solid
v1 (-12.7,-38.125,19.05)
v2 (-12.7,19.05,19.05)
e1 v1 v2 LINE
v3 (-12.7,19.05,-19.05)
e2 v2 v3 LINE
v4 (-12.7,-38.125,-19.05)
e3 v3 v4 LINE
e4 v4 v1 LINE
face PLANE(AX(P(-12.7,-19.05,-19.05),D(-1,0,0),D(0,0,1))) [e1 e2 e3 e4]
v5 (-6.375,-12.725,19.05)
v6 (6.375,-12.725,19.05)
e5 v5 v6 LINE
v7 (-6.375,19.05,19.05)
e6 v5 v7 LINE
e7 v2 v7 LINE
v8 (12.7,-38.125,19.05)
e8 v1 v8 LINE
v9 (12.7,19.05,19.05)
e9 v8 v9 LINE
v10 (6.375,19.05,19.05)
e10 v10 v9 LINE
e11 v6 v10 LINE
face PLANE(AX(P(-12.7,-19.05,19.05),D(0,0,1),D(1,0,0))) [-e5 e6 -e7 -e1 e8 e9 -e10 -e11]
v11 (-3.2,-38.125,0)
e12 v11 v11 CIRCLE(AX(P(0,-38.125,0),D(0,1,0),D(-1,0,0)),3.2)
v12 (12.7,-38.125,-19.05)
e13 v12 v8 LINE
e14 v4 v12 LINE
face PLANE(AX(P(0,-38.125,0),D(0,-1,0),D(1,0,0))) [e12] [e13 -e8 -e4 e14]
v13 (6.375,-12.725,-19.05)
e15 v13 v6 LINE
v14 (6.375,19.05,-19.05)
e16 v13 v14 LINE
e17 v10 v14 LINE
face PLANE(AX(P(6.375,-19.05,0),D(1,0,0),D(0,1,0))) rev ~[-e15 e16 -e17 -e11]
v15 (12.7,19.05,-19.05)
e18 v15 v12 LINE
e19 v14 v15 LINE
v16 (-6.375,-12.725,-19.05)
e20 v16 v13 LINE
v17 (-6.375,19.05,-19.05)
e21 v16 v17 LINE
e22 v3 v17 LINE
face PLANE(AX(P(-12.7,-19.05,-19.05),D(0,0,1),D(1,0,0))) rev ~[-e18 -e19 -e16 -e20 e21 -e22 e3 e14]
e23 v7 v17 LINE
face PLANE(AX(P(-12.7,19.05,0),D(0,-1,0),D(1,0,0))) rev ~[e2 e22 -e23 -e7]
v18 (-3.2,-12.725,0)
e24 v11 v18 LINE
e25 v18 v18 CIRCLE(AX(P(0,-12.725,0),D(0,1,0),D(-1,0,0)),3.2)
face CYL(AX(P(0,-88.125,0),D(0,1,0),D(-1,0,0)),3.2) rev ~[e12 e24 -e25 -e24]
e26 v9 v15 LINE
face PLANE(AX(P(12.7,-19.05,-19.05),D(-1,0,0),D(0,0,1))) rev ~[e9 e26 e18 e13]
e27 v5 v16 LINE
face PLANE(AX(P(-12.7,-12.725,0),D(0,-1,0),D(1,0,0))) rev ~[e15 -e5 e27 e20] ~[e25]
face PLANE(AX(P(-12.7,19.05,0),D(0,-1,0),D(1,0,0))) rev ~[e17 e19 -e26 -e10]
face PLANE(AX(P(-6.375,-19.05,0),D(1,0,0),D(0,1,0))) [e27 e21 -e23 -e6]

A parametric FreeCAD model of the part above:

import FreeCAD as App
import Part
import Sketcher
Q = App.Units.Quantity


def faces_at(feature, points):
    """Names of the faces that lie closest to the given points."""
    faces = feature.Shape.Faces
    near = lambda p: min(range(len(faces)), key=lambda i: faces[i].distToShape(Part.Vertex(*p))[0])
    return sorted({f"Face{near(p) + 1}" for p in points})

doc = App.newDocument("Part")
body = doc.addObject("PartDesign::Body", "Body")

# Sketch on XY plane
sketch1 = body.newObject("Sketcher::SketchObject", "Sketch")
sketch1.AttachmentSupport = (doc.getObject("XY_Plane"), [""])
sketch1.MapMode = "FlatFace"
sketch1.addGeometry(Part.LineSegment(App.Vector(-12.7, 19.05, 0), App.Vector(-12.7, -19.05, 0)), False)
sketch1.addGeometry(Part.LineSegment(App.Vector(-12.7, -19.05, 0), App.Vector(12.7, -19.05, 0)), False)
sketch1.addGeometry(Part.LineSegment(App.Vector(12.7, -19.05, 0), App.Vector(12.7, 19.05, 0)), False)
sketch1.addGeometry(Part.LineSegment(App.Vector(12.7, 19.05, 0), App.Vector(-12.7, 19.05, 0)), False)
sketch1.addConstraint(Sketcher.Constraint("Coincident", 0, 2, 1, 1))
sketch1.addConstraint(Sketcher.Constraint("Coincident", 1, 2, 2, 1))
sketch1.addConstraint(Sketcher.Constraint("Coincident", 2, 2, 3, 1))
sketch1.addConstraint(Sketcher.Constraint("Coincident", 3, 2, 0, 1))
sketch1.addConstraint(Sketcher.Constraint("Vertical", 0))
sketch1.addConstraint(Sketcher.Constraint("Horizontal", 1))
sketch1.addConstraint(Sketcher.Constraint("Vertical", 2))
sketch1.addConstraint(Sketcher.Constraint("Horizontal", 3))
sketch1.addConstraint(Sketcher.Constraint("Symmetric", 0, 2, 2, 2, -1, 1))
sketch1.addConstraint(Sketcher.Constraint("DistanceX", 1, 1, 1, 2, Q("1 in")))
sketch1.addConstraint(Sketcher.Constraint("DistanceY", 0, 2, 0, 1, Q("1.5 in")))
pad1 = body.newObject("PartDesign::Pad", "Pad")
pad1.Profile = sketch1
pad1.Length = Q("1.5 in")
pad1.Midplane = True
doc.recompute()

thickness = body.newObject("PartDesign::Thickness", "Thickness")
thickness.Base = (pad1, faces_at(pad1, [(0, 19.05, 0), (0, 0, 19.05), (0, 0, -19.05)]))
thickness.Value = 6.325
thickness.Reversed = True
thickness.Join = "Arc"

# Sketch on XZ plane
sketch2 = body.newObject("Sketcher::SketchObject", "Sketch001")
sketch2.AttachmentSupport = (doc.getObject("XZ_Plane"), [""])
sketch2.MapMode = "FlatFace"
sketch2.AttachmentOffset = App.Placement(App.Vector(0, 0, 0.75 * 25.4), App.Rotation())
sketch2.addGeometry(Part.LineSegment(App.Vector(-12.7, 19.05, 0), App.Vector(-12.7, -19.05, 0)), False)
sketch2.addGeometry(Part.LineSegment(App.Vector(-12.7, -19.05, 0), App.Vector(12.7, -19.05, 0)), False)
sketch2.addGeometry(Part.LineSegment(App.Vector(12.7, -19.05, 0), App.Vector(12.7, 19.05, 0)), False)
sketch2.addGeometry(Part.LineSegment(App.Vector(12.7, 19.05, 0), App.Vector(-12.7, 19.05, 0)), False)
sketch2.addConstraint(Sketcher.Constraint("Coincident", 0, 2, 1, 1))
sketch2.addConstraint(Sketcher.Constraint("Coincident", 1, 2, 2, 1))
sketch2.addConstraint(Sketcher.Constraint("Coincident", 2, 2, 3, 1))
sketch2.addConstraint(Sketcher.Constraint("Coincident", 3, 2, 0, 1))
sketch2.addConstraint(Sketcher.Constraint("Vertical", 0))
sketch2.addConstraint(Sketcher.Constraint("Horizontal", 1))
sketch2.addConstraint(Sketcher.Constraint("Vertical", 2))
sketch2.addConstraint(Sketcher.Constraint("Horizontal", 3))
sketch2.addConstraint(Sketcher.Constraint("Symmetric", 0, 2, 2, 2, -1, 1))
sketch2.addConstraint(Sketcher.Constraint("DistanceX", 1, 1, 1, 2, Q("1 in")))
sketch2.addConstraint(Sketcher.Constraint("DistanceY", 0, 2, 0, 1, Q("1.5 in")))
pad2 = body.newObject("PartDesign::Pad", "Pad001")
pad2.Profile = sketch2
pad2.Length = 19.075

# Sketch on XZ plane
sketch3 = body.newObject("Sketcher::SketchObject", "Sketch002")
sketch3.AttachmentSupport = (doc.getObject("XZ_Plane"), [""])
sketch3.MapMode = "FlatFace"
sketch3.AttachmentOffset = App.Placement(App.Vector(0, 0, 38.125), App.Rotation())
sketch3.addGeometry(Part.Circle(App.Vector(0, 0, 0), App.Vector(0, 0, 1), 3.2), False)
sketch3.addConstraint(Sketcher.Constraint("Coincident", 0, 3, -1, 1))
sketch3.addConstraint(Sketcher.Constraint("Diameter", 0, Q("6.4 mm")))
doc.recompute()
hole = body.newObject("PartDesign::Hole", "Hole")
hole.Profile = sketch3
hole.ThreadType = "None"
hole.Diameter = 6.4
hole.DepthType = "Dimension"
hole.Depth = 50
hole.DrillPoint = "Flat"

doc.recompute()
